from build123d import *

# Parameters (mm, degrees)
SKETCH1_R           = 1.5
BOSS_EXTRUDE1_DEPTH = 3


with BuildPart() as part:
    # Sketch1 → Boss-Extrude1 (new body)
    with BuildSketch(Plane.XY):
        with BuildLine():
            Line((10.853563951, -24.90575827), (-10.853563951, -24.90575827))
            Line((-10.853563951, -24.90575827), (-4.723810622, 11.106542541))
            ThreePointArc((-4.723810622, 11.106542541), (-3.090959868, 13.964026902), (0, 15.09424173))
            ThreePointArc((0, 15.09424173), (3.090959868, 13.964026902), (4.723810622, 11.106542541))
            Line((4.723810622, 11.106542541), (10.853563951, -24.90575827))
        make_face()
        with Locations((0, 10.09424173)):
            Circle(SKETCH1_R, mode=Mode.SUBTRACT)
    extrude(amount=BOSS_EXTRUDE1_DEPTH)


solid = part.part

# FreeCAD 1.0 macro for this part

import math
import FreeCAD as App
import Part
import Sketcher
Q = App.Units.Quantity

doc = App.newDocument("Part")
body = doc.addObject("PartDesign::Body", "Body")

sketch1 = body.newObject("Sketcher::SketchObject", "Sketch")
sketch1.AttachmentSupport = (doc.getObject("XY_Plane"), [""])
sketch1.MapMode = "FlatFace"
sketch1.addGeometry(Part.LineSegment(App.Vector(-10.9, -24.9, 0), App.Vector(10.9, -24.9, 0)), False)
sketch1.addGeometry(Part.LineSegment(App.Vector(10.9, -24.9, 0), App.Vector(4.7, 11.1, 0)), False)
sketch1.addGeometry(Part.ArcOfCircle(Part.Circle(App.Vector(0, 10.3, 0), App.Vector(0, 0, 1), 4.8), math.radians(10), math.radians(90)), False)
sketch1.addGeometry(Part.ArcOfCircle(Part.Circle(App.Vector(0, 10.3, 0), App.Vector(0, 0, 1), 4.8), math.radians(90), math.radians(170)), False)
sketch1.addGeometry(Part.LineSegment(App.Vector(-4.7, 11.1, 0), App.Vector(-10.9, -24.9, 0)), False)
sketch1.addGeometry(Part.Circle(App.Vector(0, 10.1, 0), App.Vector(0, 0, 1), 1.5), False)
sketch1.addConstraint(Sketcher.Constraint("Coincident", 0, 2, 1, 1))
sketch1.addConstraint(Sketcher.Constraint("Tangent", 1, 2, 2, 1))
sketch1.addConstraint(Sketcher.Constraint("Tangent", 2, 2, 3, 1))
sketch1.addConstraint(Sketcher.Constraint("Tangent", 3, 2, 4, 1))
sketch1.addConstraint(Sketcher.Constraint("Coincident", 4, 2, 0, 1))
sketch1.addConstraint(Sketcher.Constraint("Horizontal", 0))
sketch1.addConstraint(Sketcher.Constraint("Equal", 2, 3))
sketch1.addConstraint(Sketcher.Constraint("Symmetric", 1, 2, 3, 2, -2))
sketch1.addConstraint(Sketcher.Constraint("PointOnObject", 5, 3, -2))
sketch1.addConstraint(Sketcher.Constraint("PointOnObject", 2, 2, -2))
sketch1.addConstraint(Sketcher.Constraint("Diameter", 5, Q("3 mm")))
sketch1.addConstraint(Sketcher.Constraint("DistanceY", 0, 2, 5, 3, Q("35 mm")))
sketch1.addConstraint(Sketcher.Constraint("DistanceY", 5, 3, 2, 2, Q("5 mm")))
sketch1.addConstraint(Sketcher.Constraint("Radius", 2, Q("4.791752 mm")))
sketch1.addConstraint(Sketcher.Constraint("DistanceY", 5, 3, 1, 2, Q("1.012301 mm")))
sketch1.addConstraint(Sketcher.Constraint("DistanceY", -1, 1, 2, 3, Q("10.30249 mm")))
pad1 = body.newObject("PartDesign::Pad", "Pad")
pad1.Profile = sketch1
pad1.Length = 3

doc.recompute()
